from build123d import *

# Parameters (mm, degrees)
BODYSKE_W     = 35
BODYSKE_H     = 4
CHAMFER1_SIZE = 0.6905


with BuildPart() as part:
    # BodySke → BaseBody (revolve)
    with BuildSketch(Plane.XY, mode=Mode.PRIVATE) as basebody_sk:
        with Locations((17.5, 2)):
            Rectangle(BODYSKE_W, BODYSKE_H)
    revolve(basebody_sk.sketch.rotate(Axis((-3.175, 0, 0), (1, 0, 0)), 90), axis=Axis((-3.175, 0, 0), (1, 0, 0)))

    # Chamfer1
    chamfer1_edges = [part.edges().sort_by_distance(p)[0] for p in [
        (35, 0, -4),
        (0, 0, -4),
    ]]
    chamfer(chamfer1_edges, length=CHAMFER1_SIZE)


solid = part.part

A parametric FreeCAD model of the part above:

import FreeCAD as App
import Part
import Sketcher


def edges_at(feature, points):
    """Names of the edges that pass closest to the given points."""
    edges = feature.Shape.Edges
    near = lambda p: min(range(len(edges)), key=lambda i: edges[i].distToShape(Part.Vertex(*p))[0])
    return sorted({f"Edge{near(p) + 1}" for p in points})

doc = App.newDocument("Part")
body = doc.addObject("PartDesign::Body", "Body")

# Sketch on XY plane
sketch1 = body.newObject("Sketcher::SketchObject", "Sketch")
sketch1.AttachmentSupport = (doc.getObject("XY_Plane"), [""])
sketch1.MapMode = "FlatFace"
sketch1.addGeometry(Part.LineSegment(App.Vector(0, 4, 0), App.Vector(0, 0, 0)), False)
sketch1.addGeometry(Part.LineSegment(App.Vector(0, 0, 0), App.Vector(35, 0, 0)), False)
sketch1.addGeometry(Part.LineSegment(App.Vector(35, 0, 0), App.Vector(35, 4, 0)), False)
sketch1.addGeometry(Part.LineSegment(App.Vector(35, 4, 0), App.Vector(0, 4, 0)), False)
sketch1.addConstraint(Sketcher.Constraint("Coincident", 0, 2, 1, 1))
sketch1.addConstraint(Sketcher.Constraint("Coincident", 1, 2, 2, 1))
sketch1.addConstraint(Sketcher.Constraint("Coincident", 2, 2, 3, 1))
sketch1.addConstraint(Sketcher.Constraint("Coincident", 3, 2, 0, 1))
sketch1.addConstraint(Sketcher.Constraint("Vertical", 0))
sketch1.addConstraint(Sketcher.Constraint("Horizontal", 1))
sketch1.addConstraint(Sketcher.Constraint("Vertical", 2))
sketch1.addConstraint(Sketcher.Constraint("Horizontal", 3))
sketch1.addConstraint(Sketcher.Constraint("Coincident", 0, 2, -1, 1))
sketch1.addConstraint(Sketcher.Constraint("DistanceX", 1, 1, 1, 2, 35.0))
sketch1.addConstraint(Sketcher.Constraint("DistanceY", 0, 2, 0, 1, 4.0))
revolution = body.newObject("PartDesign::Revolution", "Revolution")
revolution.Profile = sketch1
revolution.ReferenceAxis = (sketch1, ["H_Axis"])
revolution.Angle = 360
doc.recompute()

chamfer = body.newObject("PartDesign::Chamfer", "Chamfer")
chamfer.Base = (revolution, edges_at(revolution, [(35, 0, -4), (0, 0, -4)]))
chamfer.Size = 0.6905

doc.recompute()
